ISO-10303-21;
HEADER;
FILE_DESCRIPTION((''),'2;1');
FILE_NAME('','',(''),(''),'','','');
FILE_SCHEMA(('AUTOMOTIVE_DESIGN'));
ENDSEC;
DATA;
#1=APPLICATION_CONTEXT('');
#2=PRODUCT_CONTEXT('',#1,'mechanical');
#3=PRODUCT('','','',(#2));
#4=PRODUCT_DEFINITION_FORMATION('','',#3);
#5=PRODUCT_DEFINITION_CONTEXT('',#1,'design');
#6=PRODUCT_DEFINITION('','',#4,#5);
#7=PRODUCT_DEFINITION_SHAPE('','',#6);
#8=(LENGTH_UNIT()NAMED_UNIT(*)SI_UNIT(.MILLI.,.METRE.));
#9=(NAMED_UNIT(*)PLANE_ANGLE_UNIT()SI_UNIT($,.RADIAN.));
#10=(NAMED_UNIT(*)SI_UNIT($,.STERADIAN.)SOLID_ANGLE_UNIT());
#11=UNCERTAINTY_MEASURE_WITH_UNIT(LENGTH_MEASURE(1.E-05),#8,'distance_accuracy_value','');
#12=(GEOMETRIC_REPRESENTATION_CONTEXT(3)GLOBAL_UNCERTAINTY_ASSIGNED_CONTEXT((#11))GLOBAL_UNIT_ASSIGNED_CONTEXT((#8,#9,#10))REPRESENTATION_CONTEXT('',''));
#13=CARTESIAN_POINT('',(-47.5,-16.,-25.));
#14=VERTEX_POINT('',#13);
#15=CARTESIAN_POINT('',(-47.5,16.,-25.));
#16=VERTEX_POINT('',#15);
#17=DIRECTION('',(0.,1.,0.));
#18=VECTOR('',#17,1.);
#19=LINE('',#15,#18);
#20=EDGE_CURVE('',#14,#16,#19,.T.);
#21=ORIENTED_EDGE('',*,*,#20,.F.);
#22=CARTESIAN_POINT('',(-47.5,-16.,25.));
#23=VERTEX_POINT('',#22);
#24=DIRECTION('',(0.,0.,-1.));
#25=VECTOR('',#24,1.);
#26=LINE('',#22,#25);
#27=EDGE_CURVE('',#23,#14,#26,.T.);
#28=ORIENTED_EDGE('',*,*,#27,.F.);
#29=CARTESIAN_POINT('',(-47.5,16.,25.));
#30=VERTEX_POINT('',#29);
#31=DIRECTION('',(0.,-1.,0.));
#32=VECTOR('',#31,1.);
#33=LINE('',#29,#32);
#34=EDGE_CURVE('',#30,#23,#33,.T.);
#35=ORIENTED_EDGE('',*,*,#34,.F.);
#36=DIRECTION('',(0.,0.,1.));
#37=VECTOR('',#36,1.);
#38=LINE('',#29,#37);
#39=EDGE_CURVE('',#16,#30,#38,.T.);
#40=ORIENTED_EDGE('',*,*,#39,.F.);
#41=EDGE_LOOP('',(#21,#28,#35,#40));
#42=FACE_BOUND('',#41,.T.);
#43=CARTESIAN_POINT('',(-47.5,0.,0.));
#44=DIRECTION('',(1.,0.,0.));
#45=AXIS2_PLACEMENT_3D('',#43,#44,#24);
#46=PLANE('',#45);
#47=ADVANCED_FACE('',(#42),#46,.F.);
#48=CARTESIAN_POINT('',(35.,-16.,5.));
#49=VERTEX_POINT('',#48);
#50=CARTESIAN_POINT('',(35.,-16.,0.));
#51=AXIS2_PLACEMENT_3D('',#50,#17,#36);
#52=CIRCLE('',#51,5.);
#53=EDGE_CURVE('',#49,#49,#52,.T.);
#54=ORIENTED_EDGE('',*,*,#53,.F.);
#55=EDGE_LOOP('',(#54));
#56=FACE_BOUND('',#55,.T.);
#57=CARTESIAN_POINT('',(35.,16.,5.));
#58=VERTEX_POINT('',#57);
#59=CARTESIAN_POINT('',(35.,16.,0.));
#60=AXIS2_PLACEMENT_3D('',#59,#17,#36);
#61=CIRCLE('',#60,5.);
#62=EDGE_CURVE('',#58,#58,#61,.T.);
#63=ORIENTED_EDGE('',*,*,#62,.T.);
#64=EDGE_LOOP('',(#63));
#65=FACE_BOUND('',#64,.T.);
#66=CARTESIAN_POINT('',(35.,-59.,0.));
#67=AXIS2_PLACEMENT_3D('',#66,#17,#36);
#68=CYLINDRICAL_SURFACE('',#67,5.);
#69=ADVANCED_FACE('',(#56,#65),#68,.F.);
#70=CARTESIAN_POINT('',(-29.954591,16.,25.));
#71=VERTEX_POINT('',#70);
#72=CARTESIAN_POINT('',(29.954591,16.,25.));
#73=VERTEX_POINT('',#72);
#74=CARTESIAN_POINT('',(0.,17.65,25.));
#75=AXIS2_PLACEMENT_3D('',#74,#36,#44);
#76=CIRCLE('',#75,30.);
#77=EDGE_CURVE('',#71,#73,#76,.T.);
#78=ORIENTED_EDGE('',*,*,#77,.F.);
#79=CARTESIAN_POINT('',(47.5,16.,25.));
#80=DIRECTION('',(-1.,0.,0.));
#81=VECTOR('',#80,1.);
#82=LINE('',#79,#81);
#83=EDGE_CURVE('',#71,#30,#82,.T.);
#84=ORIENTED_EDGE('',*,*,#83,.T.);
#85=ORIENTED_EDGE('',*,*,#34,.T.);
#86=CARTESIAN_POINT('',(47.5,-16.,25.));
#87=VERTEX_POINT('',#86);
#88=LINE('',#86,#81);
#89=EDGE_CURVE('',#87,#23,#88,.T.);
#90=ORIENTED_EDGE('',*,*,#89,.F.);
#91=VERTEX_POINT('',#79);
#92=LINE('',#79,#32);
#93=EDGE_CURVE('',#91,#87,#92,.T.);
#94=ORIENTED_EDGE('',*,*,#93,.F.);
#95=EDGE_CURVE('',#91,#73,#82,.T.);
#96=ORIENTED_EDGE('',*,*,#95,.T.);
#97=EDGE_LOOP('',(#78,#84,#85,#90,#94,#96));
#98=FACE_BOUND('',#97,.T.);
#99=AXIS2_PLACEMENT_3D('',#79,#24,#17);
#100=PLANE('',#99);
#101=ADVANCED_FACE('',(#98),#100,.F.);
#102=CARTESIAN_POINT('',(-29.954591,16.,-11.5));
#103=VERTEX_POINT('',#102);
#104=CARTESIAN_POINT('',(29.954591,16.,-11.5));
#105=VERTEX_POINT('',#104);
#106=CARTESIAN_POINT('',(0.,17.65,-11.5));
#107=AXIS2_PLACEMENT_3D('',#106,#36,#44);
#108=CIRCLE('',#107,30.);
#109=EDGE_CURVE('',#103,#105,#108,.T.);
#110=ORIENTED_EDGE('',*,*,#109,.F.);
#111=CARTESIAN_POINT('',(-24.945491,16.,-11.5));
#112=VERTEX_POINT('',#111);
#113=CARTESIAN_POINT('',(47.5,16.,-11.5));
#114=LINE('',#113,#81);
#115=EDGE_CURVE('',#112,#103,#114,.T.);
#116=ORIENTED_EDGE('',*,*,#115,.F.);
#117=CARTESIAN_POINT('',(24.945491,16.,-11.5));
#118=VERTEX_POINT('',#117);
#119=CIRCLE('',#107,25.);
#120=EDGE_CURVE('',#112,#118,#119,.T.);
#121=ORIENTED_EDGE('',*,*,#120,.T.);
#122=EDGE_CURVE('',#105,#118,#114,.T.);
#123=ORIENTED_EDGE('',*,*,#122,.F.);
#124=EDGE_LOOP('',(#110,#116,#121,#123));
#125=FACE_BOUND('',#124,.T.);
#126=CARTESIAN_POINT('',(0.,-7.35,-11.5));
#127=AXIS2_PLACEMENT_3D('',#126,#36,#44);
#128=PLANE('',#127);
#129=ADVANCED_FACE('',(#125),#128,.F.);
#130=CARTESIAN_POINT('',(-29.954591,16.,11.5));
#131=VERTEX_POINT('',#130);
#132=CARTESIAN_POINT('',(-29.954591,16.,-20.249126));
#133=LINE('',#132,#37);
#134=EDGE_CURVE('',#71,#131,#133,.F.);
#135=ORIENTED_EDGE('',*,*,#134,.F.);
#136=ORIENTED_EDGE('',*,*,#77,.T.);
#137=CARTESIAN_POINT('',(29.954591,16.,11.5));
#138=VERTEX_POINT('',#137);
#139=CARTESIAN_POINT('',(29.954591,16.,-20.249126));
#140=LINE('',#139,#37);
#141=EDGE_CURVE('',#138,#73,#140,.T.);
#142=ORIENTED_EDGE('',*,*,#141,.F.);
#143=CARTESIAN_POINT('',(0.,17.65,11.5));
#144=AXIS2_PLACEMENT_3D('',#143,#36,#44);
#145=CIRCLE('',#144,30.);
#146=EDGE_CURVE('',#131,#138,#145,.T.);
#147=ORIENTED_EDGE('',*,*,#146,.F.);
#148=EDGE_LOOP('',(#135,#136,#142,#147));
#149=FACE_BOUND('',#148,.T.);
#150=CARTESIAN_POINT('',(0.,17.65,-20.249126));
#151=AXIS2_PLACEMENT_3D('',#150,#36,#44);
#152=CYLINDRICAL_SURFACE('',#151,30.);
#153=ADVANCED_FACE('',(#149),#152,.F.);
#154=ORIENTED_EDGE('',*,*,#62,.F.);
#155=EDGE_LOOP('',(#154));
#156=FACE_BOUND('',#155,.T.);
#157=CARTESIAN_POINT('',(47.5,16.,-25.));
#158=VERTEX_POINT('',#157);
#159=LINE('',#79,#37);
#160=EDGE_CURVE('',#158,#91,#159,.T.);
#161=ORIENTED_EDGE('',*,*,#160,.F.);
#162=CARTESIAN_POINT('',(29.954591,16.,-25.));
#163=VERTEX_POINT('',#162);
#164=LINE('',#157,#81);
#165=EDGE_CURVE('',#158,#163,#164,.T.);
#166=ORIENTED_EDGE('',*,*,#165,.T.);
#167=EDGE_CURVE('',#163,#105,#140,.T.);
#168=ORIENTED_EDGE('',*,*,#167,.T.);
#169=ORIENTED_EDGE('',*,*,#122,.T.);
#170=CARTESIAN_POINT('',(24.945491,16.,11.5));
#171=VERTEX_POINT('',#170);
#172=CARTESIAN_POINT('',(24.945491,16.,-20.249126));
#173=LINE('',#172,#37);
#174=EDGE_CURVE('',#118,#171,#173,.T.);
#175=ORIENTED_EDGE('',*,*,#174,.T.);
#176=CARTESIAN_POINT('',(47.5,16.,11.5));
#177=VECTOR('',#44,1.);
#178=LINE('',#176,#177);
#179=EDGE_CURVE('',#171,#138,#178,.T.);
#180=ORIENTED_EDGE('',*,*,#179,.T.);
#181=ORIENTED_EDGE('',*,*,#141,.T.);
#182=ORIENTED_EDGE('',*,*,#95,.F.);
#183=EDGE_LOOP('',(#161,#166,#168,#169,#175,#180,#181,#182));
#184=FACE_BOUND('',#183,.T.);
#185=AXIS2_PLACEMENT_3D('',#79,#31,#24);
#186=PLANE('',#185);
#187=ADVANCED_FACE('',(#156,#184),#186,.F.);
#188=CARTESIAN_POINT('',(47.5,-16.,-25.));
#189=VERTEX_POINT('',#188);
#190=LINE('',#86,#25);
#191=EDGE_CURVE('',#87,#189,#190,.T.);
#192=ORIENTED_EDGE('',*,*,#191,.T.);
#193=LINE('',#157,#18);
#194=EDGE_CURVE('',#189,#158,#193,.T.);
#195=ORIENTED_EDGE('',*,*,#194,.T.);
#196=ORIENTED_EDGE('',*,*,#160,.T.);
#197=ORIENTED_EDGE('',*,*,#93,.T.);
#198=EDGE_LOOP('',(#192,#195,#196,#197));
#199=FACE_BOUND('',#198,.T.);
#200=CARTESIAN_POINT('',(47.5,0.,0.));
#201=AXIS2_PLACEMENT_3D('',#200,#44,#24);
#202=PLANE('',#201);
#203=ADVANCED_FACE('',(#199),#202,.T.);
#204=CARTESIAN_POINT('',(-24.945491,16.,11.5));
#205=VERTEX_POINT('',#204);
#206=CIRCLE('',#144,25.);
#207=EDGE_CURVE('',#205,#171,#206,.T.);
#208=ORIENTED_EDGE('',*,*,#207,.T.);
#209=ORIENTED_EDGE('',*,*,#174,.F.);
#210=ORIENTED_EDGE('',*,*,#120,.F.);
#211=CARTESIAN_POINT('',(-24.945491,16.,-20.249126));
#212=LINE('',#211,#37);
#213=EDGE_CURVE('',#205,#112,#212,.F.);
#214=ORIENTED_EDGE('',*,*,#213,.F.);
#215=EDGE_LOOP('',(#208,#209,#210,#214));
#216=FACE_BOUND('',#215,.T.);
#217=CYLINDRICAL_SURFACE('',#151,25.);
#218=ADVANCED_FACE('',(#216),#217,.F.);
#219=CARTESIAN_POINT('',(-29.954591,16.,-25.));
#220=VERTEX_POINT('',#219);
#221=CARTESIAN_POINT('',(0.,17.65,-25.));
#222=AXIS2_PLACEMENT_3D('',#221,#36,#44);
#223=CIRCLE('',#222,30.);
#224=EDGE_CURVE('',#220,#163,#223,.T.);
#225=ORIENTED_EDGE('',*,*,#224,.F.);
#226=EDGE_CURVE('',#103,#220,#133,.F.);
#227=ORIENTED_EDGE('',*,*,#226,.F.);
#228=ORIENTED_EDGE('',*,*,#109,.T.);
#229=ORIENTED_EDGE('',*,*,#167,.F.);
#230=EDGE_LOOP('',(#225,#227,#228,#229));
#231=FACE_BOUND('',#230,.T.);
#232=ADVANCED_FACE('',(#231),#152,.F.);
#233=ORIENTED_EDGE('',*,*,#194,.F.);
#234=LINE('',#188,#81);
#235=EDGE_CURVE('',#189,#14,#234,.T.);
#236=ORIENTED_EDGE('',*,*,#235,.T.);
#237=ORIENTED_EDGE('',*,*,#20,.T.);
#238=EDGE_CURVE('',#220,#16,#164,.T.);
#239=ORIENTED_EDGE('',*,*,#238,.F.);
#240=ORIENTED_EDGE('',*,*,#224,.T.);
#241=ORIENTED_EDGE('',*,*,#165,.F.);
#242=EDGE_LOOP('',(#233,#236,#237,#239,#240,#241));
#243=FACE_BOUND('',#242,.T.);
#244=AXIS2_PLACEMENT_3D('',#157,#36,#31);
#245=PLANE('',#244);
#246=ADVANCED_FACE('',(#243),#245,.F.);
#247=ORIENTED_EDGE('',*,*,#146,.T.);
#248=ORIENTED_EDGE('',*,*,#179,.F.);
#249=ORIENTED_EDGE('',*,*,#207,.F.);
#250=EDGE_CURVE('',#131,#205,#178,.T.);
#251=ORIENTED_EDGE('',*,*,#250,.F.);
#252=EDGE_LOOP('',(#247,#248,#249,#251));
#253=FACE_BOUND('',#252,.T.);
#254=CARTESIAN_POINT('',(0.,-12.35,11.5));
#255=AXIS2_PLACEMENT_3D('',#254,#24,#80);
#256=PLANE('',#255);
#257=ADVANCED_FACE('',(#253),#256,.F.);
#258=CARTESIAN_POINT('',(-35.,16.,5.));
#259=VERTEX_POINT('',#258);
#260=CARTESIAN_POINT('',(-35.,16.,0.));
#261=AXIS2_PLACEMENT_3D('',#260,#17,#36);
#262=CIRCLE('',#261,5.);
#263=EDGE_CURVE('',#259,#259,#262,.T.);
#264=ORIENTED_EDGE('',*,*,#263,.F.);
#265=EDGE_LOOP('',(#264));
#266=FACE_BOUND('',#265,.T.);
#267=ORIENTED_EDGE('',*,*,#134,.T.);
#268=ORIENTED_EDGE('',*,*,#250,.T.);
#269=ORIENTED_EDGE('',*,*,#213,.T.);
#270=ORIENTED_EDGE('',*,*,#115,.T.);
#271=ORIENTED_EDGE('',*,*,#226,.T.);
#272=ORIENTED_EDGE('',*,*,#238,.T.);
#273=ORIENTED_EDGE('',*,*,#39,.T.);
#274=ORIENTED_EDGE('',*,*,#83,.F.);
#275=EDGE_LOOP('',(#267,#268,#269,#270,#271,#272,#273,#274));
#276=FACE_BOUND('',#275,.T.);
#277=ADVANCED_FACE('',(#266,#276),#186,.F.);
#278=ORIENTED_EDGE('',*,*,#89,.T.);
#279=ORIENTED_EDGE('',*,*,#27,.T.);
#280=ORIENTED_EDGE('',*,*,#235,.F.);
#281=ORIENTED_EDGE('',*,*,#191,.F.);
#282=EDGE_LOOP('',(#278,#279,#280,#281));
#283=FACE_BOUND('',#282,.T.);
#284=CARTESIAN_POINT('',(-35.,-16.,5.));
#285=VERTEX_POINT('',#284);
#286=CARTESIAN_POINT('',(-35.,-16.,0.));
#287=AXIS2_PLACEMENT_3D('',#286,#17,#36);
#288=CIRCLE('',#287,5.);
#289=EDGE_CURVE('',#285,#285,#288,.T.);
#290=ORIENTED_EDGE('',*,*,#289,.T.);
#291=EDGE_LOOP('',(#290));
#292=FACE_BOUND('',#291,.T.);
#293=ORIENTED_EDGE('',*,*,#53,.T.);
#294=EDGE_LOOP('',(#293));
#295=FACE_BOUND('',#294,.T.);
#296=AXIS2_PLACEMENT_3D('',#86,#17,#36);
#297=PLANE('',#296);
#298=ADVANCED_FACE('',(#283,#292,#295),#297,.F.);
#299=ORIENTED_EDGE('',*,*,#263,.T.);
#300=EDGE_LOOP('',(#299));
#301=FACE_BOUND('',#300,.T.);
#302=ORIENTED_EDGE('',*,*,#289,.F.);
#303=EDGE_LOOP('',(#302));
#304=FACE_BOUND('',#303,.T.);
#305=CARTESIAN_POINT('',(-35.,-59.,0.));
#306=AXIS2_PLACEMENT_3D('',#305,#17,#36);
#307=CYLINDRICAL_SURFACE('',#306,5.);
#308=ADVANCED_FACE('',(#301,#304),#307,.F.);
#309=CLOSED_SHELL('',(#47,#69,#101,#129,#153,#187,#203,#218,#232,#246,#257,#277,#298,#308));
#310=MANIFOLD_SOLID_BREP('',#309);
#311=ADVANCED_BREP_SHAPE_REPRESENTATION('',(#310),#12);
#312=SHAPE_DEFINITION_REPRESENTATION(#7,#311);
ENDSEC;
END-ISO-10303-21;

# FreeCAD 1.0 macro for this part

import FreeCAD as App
import Part
import Sketcher

V = App.Vector
Q = App.Units.Quantity


def add_polygon(sketch, points):
    """Adds a closed chain of lines whose ends are joined by coincident constraints."""
    first, n = sketch.GeometryCount, len(points)
    for a, b in zip(points, points[1:] + points[:1]):
        sketch.addGeometry(Part.LineSegment(App.Vector(*a, 0), App.Vector(*b, 0)), False)
    for i in range(n):
        sketch.addConstraint(Sketcher.Constraint("Coincident", first + i, 2, first + (i + 1) % n, 1))

doc = App.newDocument("Part")
body = doc.addObject("PartDesign::Body", "Body")

# Sketch on YZ plane
sketch1 = body.newObject("Sketcher::SketchObject", "Sketch")
sketch1.AttachmentSupport = (doc.getObject("YZ_Plane"), [""])
sketch1.MapMode = "FlatFace"
add_polygon(sketch1, [(16, 25), (-16, 25), (-16, -25), (16, -25)])  # lines 0-3
sketch1.addConstraint(Sketcher.Constraint("Horizontal", 0))
sketch1.addConstraint(Sketcher.Constraint("Vertical", 1))
sketch1.addConstraint(Sketcher.Constraint("Horizontal", 2))
sketch1.addConstraint(Sketcher.Constraint("Vertical", 3))
sketch1.addConstraint(Sketcher.Constraint("Symmetric", 0, 2, 2, 2, -1, 1))
sketch1.addConstraint(Sketcher.Constraint("DistanceX", 0, 2, 0, 1, Q("32 mm")))
sketch1.addConstraint(Sketcher.Constraint("DistanceY", 1, 2, 1, 1, Q("50 mm")))
pad1 = body.newObject("PartDesign::Pad", "Pad")
pad1.Profile = sketch1
pad1.Length = 95
pad1.Midplane = True

# Sketch on YZ plane
sketch2 = body.newObject("Sketcher::SketchObject", "Sketch001")
sketch2.AttachmentSupport = (doc.getObject("YZ_Plane"), [""])
sketch2.MapMode = "FlatFace"
add_polygon(sketch2, [(-12, 25), (-12, 12), (-7, 12), (-7, -12), (-12, -12), (-12, -25), (17, -25), (17, 25)])  # lines 0-7
sketch2.addGeometry(Part.LineSegment(V(18, 25, 0), V(18, -25, 0)), True)  # axis
sketch2.addConstraint(Sketcher.Constraint("Vertical", 0))
sketch2.addConstraint(Sketcher.Constraint("Horizontal", 1))
sketch2.addConstraint(Sketcher.Constraint("Vertical", 2))
sketch2.addConstraint(Sketcher.Constraint("Horizontal", 3))
sketch2.addConstraint(Sketcher.Constraint("Vertical", 4))
sketch2.addConstraint(Sketcher.Constraint("Horizontal", 5))
sketch2.addConstraint(Sketcher.Constraint("Vertical", 6))
sketch2.addConstraint(Sketcher.Constraint("Horizontal", 7))
sketch2.addConstraint(Sketcher.Constraint("Vertical", 8))
sketch2.addConstraint(Sketcher.Constraint("Symmetric", 0, 2, 3, 2, -1))
sketch2.addConstraint(Sketcher.Constraint("Horizontal", 7, 2, 8, 1))
sketch2.addConstraint(Sketcher.Constraint("Horizontal", 5, 2, 8, 2))
sketch2.addConstraint(Sketcher.Constraint("Equal", 0, 4))
sketch2.addConstraint(Sketcher.Constraint("DistanceX", 1, 1, 1, 2, Q("5 mm")))
sketch2.addConstraint(Sketcher.Constraint("DistanceY", 2, 2, 2, 1, Q("23 mm")))
sketch2.addConstraint(Sketcher.Constraint("DistanceY", 6, 1, 6, 2, Q("50 mm")))
sketch2.addConstraint(Sketcher.Constraint("DistanceX", 1, 2, 8, 1, Q("25 mm")))
sketch2.addConstraint(Sketcher.Constraint("DistanceX", 0, 2, -1, 1, Q("12.35 mm")))
sketch2.addConstraint(Sketcher.Constraint("DistanceX", 5, 1, 5, 2, Q("28.945889 mm")))
groove = body.newObject("PartDesign::Groove", "Groove")
groove.Profile = sketch2
groove.ReferenceAxis = (sketch2, ["Axis0"])
groove.Angle = 360

# Sketch on XZ plane
sketch3 = body.newObject("Sketcher::SketchObject", "Sketch002")
sketch3.AttachmentSupport = (doc.getObject("XZ_Plane"), [""])
sketch3.MapMode = "FlatFace"
sketch3.AttachmentOffset = App.Placement(V(0, 0, -16), App.Rotation())
sketch3.addGeometry(Part.Circle(V(-35, 0, 0), V(0, 0, 1), 5), False)
sketch3.addGeometry(Part.Circle(V(35, 0, 0), V(0, 0, 1), 5), False)
sketch3.addConstraint(Sketcher.Constraint("Equal", 0, 1))
sketch3.addConstraint(Sketcher.Constraint("Symmetric", 0, 3, 1, 3, -1, 1))
sketch3.addConstraint(Sketcher.Constraint("PointOnObject", 0, 3, -1))
sketch3.addConstraint(Sketcher.Constraint("Diameter", 0, Q("10 mm")))
sketch3.addConstraint(Sketcher.Constraint("DistanceX", 0, 3, -1, 1, Q("35 mm")))
pocket1 = body.newObject("PartDesign::Pocket", "Pocket")
pocket1.Profile = sketch3
pocket1.Length = 75
pocket1.Reversed = True

doc.recompute()
